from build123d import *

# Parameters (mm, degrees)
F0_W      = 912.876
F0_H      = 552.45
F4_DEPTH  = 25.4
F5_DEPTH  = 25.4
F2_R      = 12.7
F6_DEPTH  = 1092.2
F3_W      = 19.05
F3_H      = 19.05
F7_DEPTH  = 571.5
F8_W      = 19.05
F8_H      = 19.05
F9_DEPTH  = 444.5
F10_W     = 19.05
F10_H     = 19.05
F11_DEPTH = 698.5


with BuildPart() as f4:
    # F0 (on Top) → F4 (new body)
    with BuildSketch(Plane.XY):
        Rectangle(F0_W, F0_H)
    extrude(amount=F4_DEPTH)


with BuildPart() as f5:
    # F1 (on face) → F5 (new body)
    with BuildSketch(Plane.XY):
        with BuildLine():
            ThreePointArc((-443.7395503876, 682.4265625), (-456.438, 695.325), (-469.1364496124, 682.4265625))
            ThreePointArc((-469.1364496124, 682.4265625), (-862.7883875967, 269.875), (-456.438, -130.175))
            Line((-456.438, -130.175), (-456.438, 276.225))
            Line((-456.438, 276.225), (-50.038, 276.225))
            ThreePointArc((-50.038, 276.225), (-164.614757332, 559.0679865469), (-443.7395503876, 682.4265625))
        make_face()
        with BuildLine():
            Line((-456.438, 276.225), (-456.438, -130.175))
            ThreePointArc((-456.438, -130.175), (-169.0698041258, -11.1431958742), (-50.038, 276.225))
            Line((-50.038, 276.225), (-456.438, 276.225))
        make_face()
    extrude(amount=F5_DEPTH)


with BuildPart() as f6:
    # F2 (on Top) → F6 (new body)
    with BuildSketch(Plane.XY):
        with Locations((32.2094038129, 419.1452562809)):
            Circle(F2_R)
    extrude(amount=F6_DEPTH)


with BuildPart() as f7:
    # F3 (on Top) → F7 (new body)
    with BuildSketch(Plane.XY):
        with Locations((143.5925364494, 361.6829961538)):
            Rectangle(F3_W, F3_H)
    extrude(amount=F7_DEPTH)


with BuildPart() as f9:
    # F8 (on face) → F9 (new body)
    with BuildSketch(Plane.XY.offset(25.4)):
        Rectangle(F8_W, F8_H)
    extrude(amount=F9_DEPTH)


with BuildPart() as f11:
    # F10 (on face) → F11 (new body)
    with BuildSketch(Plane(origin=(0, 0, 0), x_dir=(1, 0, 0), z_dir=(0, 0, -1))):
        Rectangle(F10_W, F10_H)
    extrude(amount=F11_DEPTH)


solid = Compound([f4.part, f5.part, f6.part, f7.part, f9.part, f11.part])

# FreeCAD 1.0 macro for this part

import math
import FreeCAD as App
import Part
import Sketcher
from FreeCAD import Vector
Q = App.Units.Quantity

doc = App.newDocument("Part")
body = doc.addObject("PartDesign::Body", "Body")

# Sketch on XY plane
sketch1 = body.newObject("Sketcher::SketchObject", "Sketch")
sketch1.AttachmentSupport = (doc.getObject("XY_Plane"), [""])
sketch1.MapMode = "FlatFace"
sketch1.addGeometry([
    Part.LineSegment(Vector(-456, 276, 0), Vector(-456, -276, 0)),
    Part.LineSegment(Vector(-456, -276, 0), Vector(456, -276, 0)),
    Part.LineSegment(Vector(456, -276, 0), Vector(456, 276, 0)),
    Part.LineSegment(Vector(456, 276, 0), Vector(-456, 276, 0)),
], False)
sketch1.addConstraint([
    Sketcher.Constraint("Coincident", 0, 2, 1, 1),
    Sketcher.Constraint("Coincident", 1, 2, 2, 1),
    Sketcher.Constraint("Coincident", 2, 2, 3, 1),
    Sketcher.Constraint("Coincident", 3, 2, 0, 1),
    Sketcher.Constraint("Vertical", 0),
    Sketcher.Constraint("Horizontal", 1),
    Sketcher.Constraint("Vertical", 2),
    Sketcher.Constraint("Horizontal", 3),
    Sketcher.Constraint("Symmetric", 0, 2, 2, 2, -1, 1),
    Sketcher.Constraint("DistanceX", 1, 1, 1, 2, Q("35.94 in")),
    Sketcher.Constraint("DistanceY", 0, 2, 0, 1, Q("21.75 in")),
])
pad1 = body.newObject("PartDesign::Pad", "Pad")
pad1.Profile = sketch1
pad1.Length = Q("1 in")
body2 = doc.addObject("PartDesign::Body", "Body001")

# Sketch on XY plane
sketch2 = body2.newObject("Sketcher::SketchObject", "Sketch001")
sketch2.AttachmentSupport = (doc.getObject("XY_Plane001"), [""])
sketch2.MapMode = "FlatFace"
sketch2.addGeometry([
    Part.ArcOfCircle(Part.Circle(Vector(-456, 683, 0), Vector(0, 0, 1), 13), math.radians(-1), math.radians(181)),
    Part.ArcOfCircle(Part.Circle(Vector(-456, 276, 0), Vector(0, 0, 1), 406), math.radians(92), math.radians(448)),
], False)
sketch2.addConstraint([
    Sketcher.Constraint("Coincident", 0, 1, 1, 2),
    Sketcher.Constraint("Coincident", 1, 1, 0, 2),
    Sketcher.Constraint("Horizontal", 0, 1, 1, 1),
    Sketcher.Constraint("Radius", 1, Q("16 in")),
    Sketcher.Constraint("Radius", 0, Q("0.5 in")),
    Sketcher.Constraint("DistanceY", 1, 3, 0, 3, Q("16 in")),
    Sketcher.Constraint("DistanceX", 0, 3, -1, 1, Q("17.97 in")),
    Sketcher.Constraint("DistanceY", -1, 1, 0, 3, Q("26.875 in")),
])
pad2 = body2.newObject("PartDesign::Pad", "Pad001")
pad2.Profile = sketch2
pad2.Length = Q("1 in")
body3 = doc.addObject("PartDesign::Body", "Body002")

# Sketch on XY plane
sketch3 = body3.newObject("Sketcher::SketchObject", "Sketch002")
sketch3.AttachmentSupport = (doc.getObject("XY_Plane002"), [""])
sketch3.MapMode = "FlatFace"
sketch3.addGeometry(Part.Circle(Vector(32, 419, 0), Vector(0, 0, 1), 13), False)
sketch3.addConstraint([
    Sketcher.Constraint("Diameter", 0, Q("1 in")),
    Sketcher.Constraint("DistanceX", -1, 1, 0, 3, Q("32.209404 mm")),
    Sketcher.Constraint("DistanceY", -1, 1, 0, 3, Q("419.145256 mm")),
])
pad3 = body3.newObject("PartDesign::Pad", "Pad002")
pad3.Profile = sketch3
pad3.Length = Q("43 in")
body4 = doc.addObject("PartDesign::Body", "Body003")

# Sketch on XY plane
sketch4 = body4.newObject("Sketcher::SketchObject", "Sketch003")
sketch4.AttachmentSupport = (doc.getObject("XY_Plane003"), [""])
sketch4.MapMode = "FlatFace"
sketch4.addGeometry([
    Part.LineSegment(Vector(134, 371, 0), Vector(134, 352, 0)),
    Part.LineSegment(Vector(134, 352, 0), Vector(153, 352, 0)),
    Part.LineSegment(Vector(153, 352, 0), Vector(153, 371, 0)),
    Part.LineSegment(Vector(153, 371, 0), Vector(134, 371, 0)),
], False)
sketch4.addConstraint([
    Sketcher.Constraint("Coincident", 0, 2, 1, 1),
    Sketcher.Constraint("Coincident", 1, 2, 2, 1),
    Sketcher.Constraint("Coincident", 2, 2, 3, 1),
    Sketcher.Constraint("Coincident", 3, 2, 0, 1),
    Sketcher.Constraint("Vertical", 0),
    Sketcher.Constraint("Horizontal", 1),
    Sketcher.Constraint("Vertical", 2),
    Sketcher.Constraint("Horizontal", 3),
    Sketcher.Constraint("Equal", 3, 0),
    Sketcher.Constraint("DistanceX", 1, 1, 1, 2, Q("0.75 in")),
    Sketcher.Constraint("DistanceX", -1, 1, 0, 2, Q("134.067536 mm")),
    Sketcher.Constraint("DistanceY", -1, 1, 0, 2, Q("352.157996 mm")),
])
pad4 = body4.newObject("PartDesign::Pad", "Pad003")
pad4.Profile = sketch4
pad4.Length = Q("22.5 in")
body5 = doc.addObject("PartDesign::Body", "Body004")

# Sketch on XY plane
sketch5 = body5.newObject("Sketcher::SketchObject", "Sketch004")
sketch5.AttachmentSupport = (doc.getObject("XY_Plane004"), [""])
sketch5.MapMode = "FlatFace"
sketch5.AttachmentOffset = App.Placement(Vector(0, 0, 1 * 25.4), App.Rotation())
sketch5.addGeometry([
    Part.LineSegment(Vector(-10, 10, 0), Vector(-10, -10, 0)),
    Part.LineSegment(Vector(-10, -10, 0), Vector(10, -10, 0)),
    Part.LineSegment(Vector(10, -10, 0), Vector(10, 10, 0)),
    Part.LineSegment(Vector(10, 10, 0), Vector(-10, 10, 0)),
], False)
sketch5.addConstraint([
    Sketcher.Constraint("Coincident", 0, 2, 1, 1),
    Sketcher.Constraint("Coincident", 1, 2, 2, 1),
    Sketcher.Constraint("Coincident", 2, 2, 3, 1),
    Sketcher.Constraint("Coincident", 3, 2, 0, 1),
    Sketcher.Constraint("Vertical", 0),
    Sketcher.Constraint("Horizontal", 1),
    Sketcher.Constraint("Vertical", 2),
    Sketcher.Constraint("Horizontal", 3),
    Sketcher.Constraint("Symmetric", 0, 2, 2, 2, -1, 1),
    Sketcher.Constraint("Equal", 3, 0),
    Sketcher.Constraint("DistanceX", 1, 1, 1, 2, Q("0.75 in")),
])
pad5 = body5.newObject("PartDesign::Pad", "Pad004")
pad5.Profile = sketch5
pad5.Length = Q("17.5 in")
body6 = doc.addObject("PartDesign::Body", "Body005")

# Sketch on XY plane
sketch6 = body6.newObject("Sketcher::SketchObject", "Sketch005")
sketch6.AttachmentSupport = (doc.getObject("XY_Plane005"), [""])
sketch6.MapMode = "FlatFace"
sketch6.addGeometry([
    Part.LineSegment(Vector(-10, -10, 0), Vector(-10, 10, 0)),
    Part.LineSegment(Vector(-10, 10, 0), Vector(10, 10, 0)),
    Part.LineSegment(Vector(10, 10, 0), Vector(10, -10, 0)),
    Part.LineSegment(Vector(10, -10, 0), Vector(-10, -10, 0)),
], False)
sketch6.addConstraint([
    Sketcher.Constraint("Coincident", 0, 2, 1, 1),
    Sketcher.Constraint("Coincident", 1, 2, 2, 1),
    Sketcher.Constraint("Coincident", 2, 2, 3, 1),
    Sketcher.Constraint("Coincident", 3, 2, 0, 1),
    Sketcher.Constraint("Vertical", 0),
    Sketcher.Constraint("Horizontal", 1),
    Sketcher.Constraint("Vertical", 2),
    Sketcher.Constraint("Horizontal", 3),
    Sketcher.Constraint("Symmetric", 0, 2, 2, 2, -1, 1),
    Sketcher.Constraint("Equal", 3, 0),
    Sketcher.Constraint("DistanceX", 1, 1, 1, 2, Q("0.75 in")),
])
pad6 = body6.newObject("PartDesign::Pad", "Pad005")
pad6.Profile = sketch6
pad6.Length = Q("27.5 in")
pad6.Reversed = True

doc.recompute()
